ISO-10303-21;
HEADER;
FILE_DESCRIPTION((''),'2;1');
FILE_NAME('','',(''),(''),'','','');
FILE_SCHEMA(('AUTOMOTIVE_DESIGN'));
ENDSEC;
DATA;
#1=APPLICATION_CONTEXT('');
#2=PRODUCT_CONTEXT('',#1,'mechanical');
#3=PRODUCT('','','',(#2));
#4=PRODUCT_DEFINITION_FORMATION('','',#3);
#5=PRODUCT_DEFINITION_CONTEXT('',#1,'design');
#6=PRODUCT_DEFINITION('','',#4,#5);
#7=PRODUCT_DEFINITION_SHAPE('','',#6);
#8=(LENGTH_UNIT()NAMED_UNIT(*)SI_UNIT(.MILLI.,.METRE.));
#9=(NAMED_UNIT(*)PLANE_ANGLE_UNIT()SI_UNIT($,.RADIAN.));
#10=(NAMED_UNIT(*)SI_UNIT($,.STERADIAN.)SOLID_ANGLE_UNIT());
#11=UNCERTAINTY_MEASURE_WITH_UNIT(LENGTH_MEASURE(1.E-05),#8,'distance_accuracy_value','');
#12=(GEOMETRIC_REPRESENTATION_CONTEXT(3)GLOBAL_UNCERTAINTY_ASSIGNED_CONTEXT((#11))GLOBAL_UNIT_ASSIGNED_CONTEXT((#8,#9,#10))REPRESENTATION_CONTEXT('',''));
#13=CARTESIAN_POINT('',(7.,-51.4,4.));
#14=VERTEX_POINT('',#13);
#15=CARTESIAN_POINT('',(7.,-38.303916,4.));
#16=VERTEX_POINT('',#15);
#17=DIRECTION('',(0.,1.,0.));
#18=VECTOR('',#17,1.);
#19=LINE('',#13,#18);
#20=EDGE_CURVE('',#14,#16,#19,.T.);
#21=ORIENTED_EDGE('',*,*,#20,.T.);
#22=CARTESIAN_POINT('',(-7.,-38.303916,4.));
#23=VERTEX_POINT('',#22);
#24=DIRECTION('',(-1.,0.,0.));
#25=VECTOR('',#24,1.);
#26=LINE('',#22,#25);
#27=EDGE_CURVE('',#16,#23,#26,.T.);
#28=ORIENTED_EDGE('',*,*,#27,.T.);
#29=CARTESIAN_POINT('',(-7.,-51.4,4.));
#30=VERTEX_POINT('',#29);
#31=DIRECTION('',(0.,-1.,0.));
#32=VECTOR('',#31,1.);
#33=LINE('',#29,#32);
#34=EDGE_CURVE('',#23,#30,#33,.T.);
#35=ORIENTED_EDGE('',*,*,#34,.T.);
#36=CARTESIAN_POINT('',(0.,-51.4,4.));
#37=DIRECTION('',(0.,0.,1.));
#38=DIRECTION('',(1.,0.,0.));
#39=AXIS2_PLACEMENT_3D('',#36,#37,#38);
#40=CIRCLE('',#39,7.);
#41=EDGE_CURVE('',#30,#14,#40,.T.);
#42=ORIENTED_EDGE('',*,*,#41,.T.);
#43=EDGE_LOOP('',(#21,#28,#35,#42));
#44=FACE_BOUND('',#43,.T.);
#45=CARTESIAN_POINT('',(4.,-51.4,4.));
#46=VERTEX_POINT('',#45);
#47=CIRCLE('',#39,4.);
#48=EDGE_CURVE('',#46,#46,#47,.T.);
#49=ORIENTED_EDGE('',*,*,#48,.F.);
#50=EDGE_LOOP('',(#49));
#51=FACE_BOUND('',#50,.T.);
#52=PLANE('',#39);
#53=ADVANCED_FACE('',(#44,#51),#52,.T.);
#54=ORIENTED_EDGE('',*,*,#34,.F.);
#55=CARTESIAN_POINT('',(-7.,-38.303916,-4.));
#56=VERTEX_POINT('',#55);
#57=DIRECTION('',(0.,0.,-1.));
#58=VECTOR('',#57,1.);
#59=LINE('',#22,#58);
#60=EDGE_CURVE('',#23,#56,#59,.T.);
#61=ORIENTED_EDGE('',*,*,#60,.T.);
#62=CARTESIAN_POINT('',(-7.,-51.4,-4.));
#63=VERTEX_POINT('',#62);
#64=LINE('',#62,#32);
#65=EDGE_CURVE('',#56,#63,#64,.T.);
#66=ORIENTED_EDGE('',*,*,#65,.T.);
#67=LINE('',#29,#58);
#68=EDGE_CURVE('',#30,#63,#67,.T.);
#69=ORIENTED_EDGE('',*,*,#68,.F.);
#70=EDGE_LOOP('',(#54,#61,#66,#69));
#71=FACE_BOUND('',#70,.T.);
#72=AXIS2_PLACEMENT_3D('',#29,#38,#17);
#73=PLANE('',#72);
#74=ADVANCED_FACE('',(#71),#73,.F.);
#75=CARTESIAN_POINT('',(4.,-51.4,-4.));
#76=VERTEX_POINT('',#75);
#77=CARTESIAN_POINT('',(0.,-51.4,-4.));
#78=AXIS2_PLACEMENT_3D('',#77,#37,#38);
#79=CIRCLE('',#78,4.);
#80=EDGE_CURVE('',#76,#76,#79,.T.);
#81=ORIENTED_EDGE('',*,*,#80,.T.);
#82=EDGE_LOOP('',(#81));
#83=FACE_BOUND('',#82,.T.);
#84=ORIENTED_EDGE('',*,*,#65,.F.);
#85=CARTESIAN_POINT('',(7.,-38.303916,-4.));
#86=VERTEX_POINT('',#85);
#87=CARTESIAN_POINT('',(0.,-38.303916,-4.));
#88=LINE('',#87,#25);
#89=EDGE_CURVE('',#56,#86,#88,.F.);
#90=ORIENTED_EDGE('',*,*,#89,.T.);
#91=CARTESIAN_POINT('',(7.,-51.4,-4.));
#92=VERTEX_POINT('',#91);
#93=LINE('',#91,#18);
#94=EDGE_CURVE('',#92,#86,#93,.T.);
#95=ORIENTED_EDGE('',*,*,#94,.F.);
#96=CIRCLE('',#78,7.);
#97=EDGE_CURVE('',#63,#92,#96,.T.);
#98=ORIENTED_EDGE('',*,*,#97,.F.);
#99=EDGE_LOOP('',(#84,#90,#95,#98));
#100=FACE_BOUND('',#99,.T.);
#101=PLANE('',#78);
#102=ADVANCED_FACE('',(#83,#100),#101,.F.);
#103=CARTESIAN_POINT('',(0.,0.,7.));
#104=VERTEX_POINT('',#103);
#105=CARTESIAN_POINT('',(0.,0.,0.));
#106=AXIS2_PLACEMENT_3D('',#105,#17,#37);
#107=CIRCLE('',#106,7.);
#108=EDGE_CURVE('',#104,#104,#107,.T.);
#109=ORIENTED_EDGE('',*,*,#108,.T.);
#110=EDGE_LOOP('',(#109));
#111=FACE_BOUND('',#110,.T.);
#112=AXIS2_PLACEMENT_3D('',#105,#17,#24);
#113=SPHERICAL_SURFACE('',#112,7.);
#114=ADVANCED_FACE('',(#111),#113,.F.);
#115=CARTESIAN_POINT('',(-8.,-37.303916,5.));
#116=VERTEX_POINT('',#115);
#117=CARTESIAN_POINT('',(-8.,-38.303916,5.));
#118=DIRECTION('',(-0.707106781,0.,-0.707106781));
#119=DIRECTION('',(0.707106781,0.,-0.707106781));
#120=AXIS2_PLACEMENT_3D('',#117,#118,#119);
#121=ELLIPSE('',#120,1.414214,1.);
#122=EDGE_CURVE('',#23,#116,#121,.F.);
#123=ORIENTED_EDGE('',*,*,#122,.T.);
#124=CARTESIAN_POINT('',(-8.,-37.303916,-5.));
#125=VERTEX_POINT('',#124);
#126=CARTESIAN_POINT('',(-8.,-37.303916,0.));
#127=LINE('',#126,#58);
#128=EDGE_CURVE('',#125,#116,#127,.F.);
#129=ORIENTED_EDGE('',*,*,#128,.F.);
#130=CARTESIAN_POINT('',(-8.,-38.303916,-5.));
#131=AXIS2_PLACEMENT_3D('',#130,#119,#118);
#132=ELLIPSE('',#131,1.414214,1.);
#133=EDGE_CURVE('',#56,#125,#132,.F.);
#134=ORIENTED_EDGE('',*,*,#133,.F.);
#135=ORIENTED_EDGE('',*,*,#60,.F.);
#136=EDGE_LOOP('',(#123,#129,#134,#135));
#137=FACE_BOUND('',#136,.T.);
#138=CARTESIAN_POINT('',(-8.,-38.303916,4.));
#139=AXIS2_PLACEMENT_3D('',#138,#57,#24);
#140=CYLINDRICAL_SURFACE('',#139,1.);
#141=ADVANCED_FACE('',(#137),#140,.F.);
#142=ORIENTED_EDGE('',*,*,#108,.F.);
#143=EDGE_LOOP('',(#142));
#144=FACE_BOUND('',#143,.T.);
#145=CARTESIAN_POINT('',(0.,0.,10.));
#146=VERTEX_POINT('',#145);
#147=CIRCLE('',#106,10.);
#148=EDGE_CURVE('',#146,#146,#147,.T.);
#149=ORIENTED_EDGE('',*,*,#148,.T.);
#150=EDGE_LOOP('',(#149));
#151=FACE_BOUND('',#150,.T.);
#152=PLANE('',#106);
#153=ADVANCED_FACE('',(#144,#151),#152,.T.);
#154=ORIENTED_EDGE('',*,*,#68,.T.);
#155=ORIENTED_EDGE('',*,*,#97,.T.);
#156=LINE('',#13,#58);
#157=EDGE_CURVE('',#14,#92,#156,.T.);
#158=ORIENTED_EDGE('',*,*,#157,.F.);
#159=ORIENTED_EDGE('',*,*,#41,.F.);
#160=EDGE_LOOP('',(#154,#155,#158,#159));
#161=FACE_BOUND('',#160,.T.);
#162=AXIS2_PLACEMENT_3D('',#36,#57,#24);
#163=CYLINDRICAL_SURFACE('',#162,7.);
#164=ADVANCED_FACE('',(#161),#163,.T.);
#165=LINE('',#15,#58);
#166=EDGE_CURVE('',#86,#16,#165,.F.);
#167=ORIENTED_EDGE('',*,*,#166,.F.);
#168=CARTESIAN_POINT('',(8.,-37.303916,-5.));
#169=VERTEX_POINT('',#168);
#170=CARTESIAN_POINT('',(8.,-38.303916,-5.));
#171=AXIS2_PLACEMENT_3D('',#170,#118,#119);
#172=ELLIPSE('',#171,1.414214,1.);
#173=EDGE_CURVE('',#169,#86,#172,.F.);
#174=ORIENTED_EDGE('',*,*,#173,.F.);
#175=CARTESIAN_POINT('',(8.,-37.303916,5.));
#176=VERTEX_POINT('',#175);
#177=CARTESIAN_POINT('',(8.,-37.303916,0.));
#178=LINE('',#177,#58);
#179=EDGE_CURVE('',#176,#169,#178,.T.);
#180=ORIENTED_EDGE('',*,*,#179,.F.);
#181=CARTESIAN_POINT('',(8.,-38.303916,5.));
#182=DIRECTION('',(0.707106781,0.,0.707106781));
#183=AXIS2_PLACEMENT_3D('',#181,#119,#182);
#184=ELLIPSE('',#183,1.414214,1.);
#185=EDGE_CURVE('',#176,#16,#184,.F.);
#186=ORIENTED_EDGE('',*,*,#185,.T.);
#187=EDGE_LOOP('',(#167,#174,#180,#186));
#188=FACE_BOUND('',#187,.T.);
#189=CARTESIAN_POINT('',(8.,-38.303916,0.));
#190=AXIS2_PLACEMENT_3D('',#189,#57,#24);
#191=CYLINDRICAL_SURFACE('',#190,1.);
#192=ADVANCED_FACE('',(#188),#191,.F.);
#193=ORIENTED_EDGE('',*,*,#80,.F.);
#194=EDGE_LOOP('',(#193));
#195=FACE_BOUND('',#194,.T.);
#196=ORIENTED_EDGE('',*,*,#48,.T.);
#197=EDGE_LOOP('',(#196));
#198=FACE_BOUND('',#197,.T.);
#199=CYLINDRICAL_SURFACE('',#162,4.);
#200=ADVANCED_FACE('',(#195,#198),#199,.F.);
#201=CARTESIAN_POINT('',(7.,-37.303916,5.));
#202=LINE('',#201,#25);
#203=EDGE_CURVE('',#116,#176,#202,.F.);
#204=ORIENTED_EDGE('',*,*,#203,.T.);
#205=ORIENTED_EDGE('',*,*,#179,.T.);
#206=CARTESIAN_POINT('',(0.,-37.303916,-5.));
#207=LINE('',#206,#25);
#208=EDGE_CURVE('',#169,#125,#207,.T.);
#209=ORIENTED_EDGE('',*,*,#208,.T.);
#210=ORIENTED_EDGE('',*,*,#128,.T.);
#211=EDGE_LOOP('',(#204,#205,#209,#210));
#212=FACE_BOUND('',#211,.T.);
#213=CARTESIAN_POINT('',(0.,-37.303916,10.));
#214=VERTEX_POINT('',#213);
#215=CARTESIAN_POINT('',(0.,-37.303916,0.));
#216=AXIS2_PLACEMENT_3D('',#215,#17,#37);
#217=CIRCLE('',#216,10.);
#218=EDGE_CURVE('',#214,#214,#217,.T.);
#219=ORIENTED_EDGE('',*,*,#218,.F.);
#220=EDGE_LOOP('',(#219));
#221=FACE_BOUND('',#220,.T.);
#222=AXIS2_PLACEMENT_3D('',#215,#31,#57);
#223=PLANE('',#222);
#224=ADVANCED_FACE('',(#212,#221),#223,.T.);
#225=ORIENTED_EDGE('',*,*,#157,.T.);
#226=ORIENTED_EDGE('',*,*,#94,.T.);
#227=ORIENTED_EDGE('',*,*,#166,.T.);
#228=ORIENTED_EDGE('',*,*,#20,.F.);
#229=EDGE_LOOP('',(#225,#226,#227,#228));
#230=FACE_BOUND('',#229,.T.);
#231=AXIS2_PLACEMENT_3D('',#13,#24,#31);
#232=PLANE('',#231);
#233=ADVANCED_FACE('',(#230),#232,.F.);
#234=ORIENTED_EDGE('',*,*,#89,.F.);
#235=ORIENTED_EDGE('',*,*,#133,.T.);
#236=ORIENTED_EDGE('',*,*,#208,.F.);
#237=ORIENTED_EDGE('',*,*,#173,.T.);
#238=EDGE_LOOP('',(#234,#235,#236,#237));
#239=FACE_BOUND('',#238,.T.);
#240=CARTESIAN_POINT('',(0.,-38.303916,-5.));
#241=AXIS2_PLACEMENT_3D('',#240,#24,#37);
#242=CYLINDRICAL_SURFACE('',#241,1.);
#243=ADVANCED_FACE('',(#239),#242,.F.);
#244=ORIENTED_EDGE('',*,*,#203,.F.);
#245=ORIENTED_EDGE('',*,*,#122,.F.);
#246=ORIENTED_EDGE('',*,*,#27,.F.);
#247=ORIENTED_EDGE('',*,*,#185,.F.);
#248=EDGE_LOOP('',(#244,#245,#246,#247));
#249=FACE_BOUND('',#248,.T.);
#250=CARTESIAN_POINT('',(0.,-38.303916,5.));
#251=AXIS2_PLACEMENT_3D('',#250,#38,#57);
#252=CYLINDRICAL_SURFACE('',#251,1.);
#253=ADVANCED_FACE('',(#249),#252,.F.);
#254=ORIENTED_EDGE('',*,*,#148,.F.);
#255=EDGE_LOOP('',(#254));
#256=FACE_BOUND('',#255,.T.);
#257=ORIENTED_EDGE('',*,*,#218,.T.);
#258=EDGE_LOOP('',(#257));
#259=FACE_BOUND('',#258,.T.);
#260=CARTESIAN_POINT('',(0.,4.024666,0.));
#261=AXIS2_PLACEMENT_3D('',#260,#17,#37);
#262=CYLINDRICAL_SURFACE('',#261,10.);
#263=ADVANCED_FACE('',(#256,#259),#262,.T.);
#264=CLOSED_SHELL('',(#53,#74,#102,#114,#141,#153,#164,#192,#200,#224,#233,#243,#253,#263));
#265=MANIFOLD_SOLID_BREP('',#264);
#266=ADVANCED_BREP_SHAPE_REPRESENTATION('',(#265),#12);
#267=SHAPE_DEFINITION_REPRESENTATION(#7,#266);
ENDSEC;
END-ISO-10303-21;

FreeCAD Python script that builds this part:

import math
import FreeCAD as App
import Part
import Sketcher
from FreeCAD import Vector


def edges_at(feature, points):
    """Names of the edges that pass closest to the given points."""
    edges = feature.Shape.Edges
    near = lambda p: min(range(len(edges)), key=lambda i: edges[i].distToShape(Part.Vertex(*p))[0])
    return sorted({f"Edge{near(p) + 1}" for p in points})

doc = App.newDocument("Part")
body = doc.addObject("PartDesign::Body", "Body")

# Sketch on XY plane
sketch1 = body.newObject("Sketcher::SketchObject", "Sketch")
sketch1.AttachmentSupport = (doc.getObject("XY_Plane"), [""])
sketch1.MapMode = "FlatFace"
sketch1.addGeometry([
    Part.ArcOfCircle(Part.Circle(Vector(0, 0, 0), Vector(0, 0, 1), 7), math.radians(-180), math.radians(-90)),  # 0
    Part.LineSegment(Vector(-7, 0, 0), Vector(-10, 0, 0)),  # 1
    Part.LineSegment(Vector(-10, 0, 0), Vector(-10, -37.303916, 0)),  # 2
    Part.LineSegment(Vector(-10, -37.303916, 0), Vector(0, -37.303916, 0)),  # 3
    Part.LineSegment(Vector(0, -37.303916, 0), Vector(0, -7, 0)),  # 4
], False)
sketch1.addConstraint([
    Sketcher.Constraint("Coincident", 0, 1, 1, 1),
    Sketcher.Constraint("Coincident", 1, 2, 2, 1),
    Sketcher.Constraint("Coincident", 2, 2, 3, 1),
    Sketcher.Constraint("Coincident", 3, 2, 4, 1),
    Sketcher.Constraint("Coincident", 4, 2, 0, 2),
    Sketcher.Constraint("Horizontal", 1),
    Sketcher.Constraint("Vertical", 2),
    Sketcher.Constraint("Horizontal", 3),
    Sketcher.Constraint("Vertical", 4),
    Sketcher.Constraint("Coincident", 0, 3, -1, 1),
    Sketcher.Constraint("PointOnObject", 0, 1, -1),
    Sketcher.Constraint("PointOnObject", 3, 2, -2),
    Sketcher.Constraint("Radius", 0, 7.0),
    Sketcher.Constraint("DistanceX", 1, 2, 1, 1, 3.0),
    Sketcher.Constraint("DistanceY", 2, 2, 2, 1, 37.303916),
])
revolution = body.newObject("PartDesign::Revolution", "Revolution")
revolution.Profile = sketch1
revolution.ReferenceAxis = (sketch1, ["V_Axis"])
revolution.Angle = 360

# Sketch on XY plane
sketch2 = body.newObject("Sketcher::SketchObject", "Sketch001")
sketch2.AttachmentSupport = (doc.getObject("XY_Plane"), [""])
sketch2.MapMode = "FlatFace"
sketch2.addGeometry([
    Part.LineSegment(Vector(-7, -37.303916, 0), Vector(-7, -51.4, 0)),  # 0
    Part.ArcOfCircle(Part.Circle(Vector(0, -51.4, 0), Vector(0, 0, 1), 7), math.radians(180), math.radians(360)),  # 1
    Part.LineSegment(Vector(7, -51.4, 0), Vector(7, -37.303916, 0)),  # 2
    Part.LineSegment(Vector(7, -37.303916, 0), Vector(-7, -37.303916, 0)),  # 3
    Part.Circle(Vector(0, -51.4, 0), Vector(0, 0, 1), 4),  # 4
], False)
sketch2.addConstraint([
    Sketcher.Constraint("Tangent", 0, 2, 1, 1),
    Sketcher.Constraint("Tangent", 1, 2, 2, 1),
    Sketcher.Constraint("Coincident", 2, 2, 3, 1),
    Sketcher.Constraint("Coincident", 3, 2, 0, 1),
    Sketcher.Constraint("Vertical", 0),
    Sketcher.Constraint("Vertical", 2),
    Sketcher.Constraint("Horizontal", 3),
    Sketcher.Constraint("Coincident", 4, 3, 1, 3),
    Sketcher.Constraint("PointOnObject", 1, 3, -2),
    Sketcher.Constraint("Diameter", 4, 8.0),
    Sketcher.Constraint("Radius", 1, 7.0),
    Sketcher.Constraint("DistanceY", 1, 3, -1, 1, 51.4),
    Sketcher.Constraint("DistanceY", 0, 2, 0, 1, 14.096084),
])
pad1 = body.newObject("PartDesign::Pad", "Pad")
pad1.Profile = sketch2
pad1.Length = 8
pad1.Midplane = True
doc.recompute()

fillet = body.newObject("PartDesign::Fillet", "Fillet")
fillet.Base = (pad1, edges_at(pad1, [
    (0, -37.304, 4),
    (0, -37.304, -4),
    (7, -37.304, 0),
    (-7, -37.304, 0),
]))
fillet.Radius = 1

doc.recompute()
